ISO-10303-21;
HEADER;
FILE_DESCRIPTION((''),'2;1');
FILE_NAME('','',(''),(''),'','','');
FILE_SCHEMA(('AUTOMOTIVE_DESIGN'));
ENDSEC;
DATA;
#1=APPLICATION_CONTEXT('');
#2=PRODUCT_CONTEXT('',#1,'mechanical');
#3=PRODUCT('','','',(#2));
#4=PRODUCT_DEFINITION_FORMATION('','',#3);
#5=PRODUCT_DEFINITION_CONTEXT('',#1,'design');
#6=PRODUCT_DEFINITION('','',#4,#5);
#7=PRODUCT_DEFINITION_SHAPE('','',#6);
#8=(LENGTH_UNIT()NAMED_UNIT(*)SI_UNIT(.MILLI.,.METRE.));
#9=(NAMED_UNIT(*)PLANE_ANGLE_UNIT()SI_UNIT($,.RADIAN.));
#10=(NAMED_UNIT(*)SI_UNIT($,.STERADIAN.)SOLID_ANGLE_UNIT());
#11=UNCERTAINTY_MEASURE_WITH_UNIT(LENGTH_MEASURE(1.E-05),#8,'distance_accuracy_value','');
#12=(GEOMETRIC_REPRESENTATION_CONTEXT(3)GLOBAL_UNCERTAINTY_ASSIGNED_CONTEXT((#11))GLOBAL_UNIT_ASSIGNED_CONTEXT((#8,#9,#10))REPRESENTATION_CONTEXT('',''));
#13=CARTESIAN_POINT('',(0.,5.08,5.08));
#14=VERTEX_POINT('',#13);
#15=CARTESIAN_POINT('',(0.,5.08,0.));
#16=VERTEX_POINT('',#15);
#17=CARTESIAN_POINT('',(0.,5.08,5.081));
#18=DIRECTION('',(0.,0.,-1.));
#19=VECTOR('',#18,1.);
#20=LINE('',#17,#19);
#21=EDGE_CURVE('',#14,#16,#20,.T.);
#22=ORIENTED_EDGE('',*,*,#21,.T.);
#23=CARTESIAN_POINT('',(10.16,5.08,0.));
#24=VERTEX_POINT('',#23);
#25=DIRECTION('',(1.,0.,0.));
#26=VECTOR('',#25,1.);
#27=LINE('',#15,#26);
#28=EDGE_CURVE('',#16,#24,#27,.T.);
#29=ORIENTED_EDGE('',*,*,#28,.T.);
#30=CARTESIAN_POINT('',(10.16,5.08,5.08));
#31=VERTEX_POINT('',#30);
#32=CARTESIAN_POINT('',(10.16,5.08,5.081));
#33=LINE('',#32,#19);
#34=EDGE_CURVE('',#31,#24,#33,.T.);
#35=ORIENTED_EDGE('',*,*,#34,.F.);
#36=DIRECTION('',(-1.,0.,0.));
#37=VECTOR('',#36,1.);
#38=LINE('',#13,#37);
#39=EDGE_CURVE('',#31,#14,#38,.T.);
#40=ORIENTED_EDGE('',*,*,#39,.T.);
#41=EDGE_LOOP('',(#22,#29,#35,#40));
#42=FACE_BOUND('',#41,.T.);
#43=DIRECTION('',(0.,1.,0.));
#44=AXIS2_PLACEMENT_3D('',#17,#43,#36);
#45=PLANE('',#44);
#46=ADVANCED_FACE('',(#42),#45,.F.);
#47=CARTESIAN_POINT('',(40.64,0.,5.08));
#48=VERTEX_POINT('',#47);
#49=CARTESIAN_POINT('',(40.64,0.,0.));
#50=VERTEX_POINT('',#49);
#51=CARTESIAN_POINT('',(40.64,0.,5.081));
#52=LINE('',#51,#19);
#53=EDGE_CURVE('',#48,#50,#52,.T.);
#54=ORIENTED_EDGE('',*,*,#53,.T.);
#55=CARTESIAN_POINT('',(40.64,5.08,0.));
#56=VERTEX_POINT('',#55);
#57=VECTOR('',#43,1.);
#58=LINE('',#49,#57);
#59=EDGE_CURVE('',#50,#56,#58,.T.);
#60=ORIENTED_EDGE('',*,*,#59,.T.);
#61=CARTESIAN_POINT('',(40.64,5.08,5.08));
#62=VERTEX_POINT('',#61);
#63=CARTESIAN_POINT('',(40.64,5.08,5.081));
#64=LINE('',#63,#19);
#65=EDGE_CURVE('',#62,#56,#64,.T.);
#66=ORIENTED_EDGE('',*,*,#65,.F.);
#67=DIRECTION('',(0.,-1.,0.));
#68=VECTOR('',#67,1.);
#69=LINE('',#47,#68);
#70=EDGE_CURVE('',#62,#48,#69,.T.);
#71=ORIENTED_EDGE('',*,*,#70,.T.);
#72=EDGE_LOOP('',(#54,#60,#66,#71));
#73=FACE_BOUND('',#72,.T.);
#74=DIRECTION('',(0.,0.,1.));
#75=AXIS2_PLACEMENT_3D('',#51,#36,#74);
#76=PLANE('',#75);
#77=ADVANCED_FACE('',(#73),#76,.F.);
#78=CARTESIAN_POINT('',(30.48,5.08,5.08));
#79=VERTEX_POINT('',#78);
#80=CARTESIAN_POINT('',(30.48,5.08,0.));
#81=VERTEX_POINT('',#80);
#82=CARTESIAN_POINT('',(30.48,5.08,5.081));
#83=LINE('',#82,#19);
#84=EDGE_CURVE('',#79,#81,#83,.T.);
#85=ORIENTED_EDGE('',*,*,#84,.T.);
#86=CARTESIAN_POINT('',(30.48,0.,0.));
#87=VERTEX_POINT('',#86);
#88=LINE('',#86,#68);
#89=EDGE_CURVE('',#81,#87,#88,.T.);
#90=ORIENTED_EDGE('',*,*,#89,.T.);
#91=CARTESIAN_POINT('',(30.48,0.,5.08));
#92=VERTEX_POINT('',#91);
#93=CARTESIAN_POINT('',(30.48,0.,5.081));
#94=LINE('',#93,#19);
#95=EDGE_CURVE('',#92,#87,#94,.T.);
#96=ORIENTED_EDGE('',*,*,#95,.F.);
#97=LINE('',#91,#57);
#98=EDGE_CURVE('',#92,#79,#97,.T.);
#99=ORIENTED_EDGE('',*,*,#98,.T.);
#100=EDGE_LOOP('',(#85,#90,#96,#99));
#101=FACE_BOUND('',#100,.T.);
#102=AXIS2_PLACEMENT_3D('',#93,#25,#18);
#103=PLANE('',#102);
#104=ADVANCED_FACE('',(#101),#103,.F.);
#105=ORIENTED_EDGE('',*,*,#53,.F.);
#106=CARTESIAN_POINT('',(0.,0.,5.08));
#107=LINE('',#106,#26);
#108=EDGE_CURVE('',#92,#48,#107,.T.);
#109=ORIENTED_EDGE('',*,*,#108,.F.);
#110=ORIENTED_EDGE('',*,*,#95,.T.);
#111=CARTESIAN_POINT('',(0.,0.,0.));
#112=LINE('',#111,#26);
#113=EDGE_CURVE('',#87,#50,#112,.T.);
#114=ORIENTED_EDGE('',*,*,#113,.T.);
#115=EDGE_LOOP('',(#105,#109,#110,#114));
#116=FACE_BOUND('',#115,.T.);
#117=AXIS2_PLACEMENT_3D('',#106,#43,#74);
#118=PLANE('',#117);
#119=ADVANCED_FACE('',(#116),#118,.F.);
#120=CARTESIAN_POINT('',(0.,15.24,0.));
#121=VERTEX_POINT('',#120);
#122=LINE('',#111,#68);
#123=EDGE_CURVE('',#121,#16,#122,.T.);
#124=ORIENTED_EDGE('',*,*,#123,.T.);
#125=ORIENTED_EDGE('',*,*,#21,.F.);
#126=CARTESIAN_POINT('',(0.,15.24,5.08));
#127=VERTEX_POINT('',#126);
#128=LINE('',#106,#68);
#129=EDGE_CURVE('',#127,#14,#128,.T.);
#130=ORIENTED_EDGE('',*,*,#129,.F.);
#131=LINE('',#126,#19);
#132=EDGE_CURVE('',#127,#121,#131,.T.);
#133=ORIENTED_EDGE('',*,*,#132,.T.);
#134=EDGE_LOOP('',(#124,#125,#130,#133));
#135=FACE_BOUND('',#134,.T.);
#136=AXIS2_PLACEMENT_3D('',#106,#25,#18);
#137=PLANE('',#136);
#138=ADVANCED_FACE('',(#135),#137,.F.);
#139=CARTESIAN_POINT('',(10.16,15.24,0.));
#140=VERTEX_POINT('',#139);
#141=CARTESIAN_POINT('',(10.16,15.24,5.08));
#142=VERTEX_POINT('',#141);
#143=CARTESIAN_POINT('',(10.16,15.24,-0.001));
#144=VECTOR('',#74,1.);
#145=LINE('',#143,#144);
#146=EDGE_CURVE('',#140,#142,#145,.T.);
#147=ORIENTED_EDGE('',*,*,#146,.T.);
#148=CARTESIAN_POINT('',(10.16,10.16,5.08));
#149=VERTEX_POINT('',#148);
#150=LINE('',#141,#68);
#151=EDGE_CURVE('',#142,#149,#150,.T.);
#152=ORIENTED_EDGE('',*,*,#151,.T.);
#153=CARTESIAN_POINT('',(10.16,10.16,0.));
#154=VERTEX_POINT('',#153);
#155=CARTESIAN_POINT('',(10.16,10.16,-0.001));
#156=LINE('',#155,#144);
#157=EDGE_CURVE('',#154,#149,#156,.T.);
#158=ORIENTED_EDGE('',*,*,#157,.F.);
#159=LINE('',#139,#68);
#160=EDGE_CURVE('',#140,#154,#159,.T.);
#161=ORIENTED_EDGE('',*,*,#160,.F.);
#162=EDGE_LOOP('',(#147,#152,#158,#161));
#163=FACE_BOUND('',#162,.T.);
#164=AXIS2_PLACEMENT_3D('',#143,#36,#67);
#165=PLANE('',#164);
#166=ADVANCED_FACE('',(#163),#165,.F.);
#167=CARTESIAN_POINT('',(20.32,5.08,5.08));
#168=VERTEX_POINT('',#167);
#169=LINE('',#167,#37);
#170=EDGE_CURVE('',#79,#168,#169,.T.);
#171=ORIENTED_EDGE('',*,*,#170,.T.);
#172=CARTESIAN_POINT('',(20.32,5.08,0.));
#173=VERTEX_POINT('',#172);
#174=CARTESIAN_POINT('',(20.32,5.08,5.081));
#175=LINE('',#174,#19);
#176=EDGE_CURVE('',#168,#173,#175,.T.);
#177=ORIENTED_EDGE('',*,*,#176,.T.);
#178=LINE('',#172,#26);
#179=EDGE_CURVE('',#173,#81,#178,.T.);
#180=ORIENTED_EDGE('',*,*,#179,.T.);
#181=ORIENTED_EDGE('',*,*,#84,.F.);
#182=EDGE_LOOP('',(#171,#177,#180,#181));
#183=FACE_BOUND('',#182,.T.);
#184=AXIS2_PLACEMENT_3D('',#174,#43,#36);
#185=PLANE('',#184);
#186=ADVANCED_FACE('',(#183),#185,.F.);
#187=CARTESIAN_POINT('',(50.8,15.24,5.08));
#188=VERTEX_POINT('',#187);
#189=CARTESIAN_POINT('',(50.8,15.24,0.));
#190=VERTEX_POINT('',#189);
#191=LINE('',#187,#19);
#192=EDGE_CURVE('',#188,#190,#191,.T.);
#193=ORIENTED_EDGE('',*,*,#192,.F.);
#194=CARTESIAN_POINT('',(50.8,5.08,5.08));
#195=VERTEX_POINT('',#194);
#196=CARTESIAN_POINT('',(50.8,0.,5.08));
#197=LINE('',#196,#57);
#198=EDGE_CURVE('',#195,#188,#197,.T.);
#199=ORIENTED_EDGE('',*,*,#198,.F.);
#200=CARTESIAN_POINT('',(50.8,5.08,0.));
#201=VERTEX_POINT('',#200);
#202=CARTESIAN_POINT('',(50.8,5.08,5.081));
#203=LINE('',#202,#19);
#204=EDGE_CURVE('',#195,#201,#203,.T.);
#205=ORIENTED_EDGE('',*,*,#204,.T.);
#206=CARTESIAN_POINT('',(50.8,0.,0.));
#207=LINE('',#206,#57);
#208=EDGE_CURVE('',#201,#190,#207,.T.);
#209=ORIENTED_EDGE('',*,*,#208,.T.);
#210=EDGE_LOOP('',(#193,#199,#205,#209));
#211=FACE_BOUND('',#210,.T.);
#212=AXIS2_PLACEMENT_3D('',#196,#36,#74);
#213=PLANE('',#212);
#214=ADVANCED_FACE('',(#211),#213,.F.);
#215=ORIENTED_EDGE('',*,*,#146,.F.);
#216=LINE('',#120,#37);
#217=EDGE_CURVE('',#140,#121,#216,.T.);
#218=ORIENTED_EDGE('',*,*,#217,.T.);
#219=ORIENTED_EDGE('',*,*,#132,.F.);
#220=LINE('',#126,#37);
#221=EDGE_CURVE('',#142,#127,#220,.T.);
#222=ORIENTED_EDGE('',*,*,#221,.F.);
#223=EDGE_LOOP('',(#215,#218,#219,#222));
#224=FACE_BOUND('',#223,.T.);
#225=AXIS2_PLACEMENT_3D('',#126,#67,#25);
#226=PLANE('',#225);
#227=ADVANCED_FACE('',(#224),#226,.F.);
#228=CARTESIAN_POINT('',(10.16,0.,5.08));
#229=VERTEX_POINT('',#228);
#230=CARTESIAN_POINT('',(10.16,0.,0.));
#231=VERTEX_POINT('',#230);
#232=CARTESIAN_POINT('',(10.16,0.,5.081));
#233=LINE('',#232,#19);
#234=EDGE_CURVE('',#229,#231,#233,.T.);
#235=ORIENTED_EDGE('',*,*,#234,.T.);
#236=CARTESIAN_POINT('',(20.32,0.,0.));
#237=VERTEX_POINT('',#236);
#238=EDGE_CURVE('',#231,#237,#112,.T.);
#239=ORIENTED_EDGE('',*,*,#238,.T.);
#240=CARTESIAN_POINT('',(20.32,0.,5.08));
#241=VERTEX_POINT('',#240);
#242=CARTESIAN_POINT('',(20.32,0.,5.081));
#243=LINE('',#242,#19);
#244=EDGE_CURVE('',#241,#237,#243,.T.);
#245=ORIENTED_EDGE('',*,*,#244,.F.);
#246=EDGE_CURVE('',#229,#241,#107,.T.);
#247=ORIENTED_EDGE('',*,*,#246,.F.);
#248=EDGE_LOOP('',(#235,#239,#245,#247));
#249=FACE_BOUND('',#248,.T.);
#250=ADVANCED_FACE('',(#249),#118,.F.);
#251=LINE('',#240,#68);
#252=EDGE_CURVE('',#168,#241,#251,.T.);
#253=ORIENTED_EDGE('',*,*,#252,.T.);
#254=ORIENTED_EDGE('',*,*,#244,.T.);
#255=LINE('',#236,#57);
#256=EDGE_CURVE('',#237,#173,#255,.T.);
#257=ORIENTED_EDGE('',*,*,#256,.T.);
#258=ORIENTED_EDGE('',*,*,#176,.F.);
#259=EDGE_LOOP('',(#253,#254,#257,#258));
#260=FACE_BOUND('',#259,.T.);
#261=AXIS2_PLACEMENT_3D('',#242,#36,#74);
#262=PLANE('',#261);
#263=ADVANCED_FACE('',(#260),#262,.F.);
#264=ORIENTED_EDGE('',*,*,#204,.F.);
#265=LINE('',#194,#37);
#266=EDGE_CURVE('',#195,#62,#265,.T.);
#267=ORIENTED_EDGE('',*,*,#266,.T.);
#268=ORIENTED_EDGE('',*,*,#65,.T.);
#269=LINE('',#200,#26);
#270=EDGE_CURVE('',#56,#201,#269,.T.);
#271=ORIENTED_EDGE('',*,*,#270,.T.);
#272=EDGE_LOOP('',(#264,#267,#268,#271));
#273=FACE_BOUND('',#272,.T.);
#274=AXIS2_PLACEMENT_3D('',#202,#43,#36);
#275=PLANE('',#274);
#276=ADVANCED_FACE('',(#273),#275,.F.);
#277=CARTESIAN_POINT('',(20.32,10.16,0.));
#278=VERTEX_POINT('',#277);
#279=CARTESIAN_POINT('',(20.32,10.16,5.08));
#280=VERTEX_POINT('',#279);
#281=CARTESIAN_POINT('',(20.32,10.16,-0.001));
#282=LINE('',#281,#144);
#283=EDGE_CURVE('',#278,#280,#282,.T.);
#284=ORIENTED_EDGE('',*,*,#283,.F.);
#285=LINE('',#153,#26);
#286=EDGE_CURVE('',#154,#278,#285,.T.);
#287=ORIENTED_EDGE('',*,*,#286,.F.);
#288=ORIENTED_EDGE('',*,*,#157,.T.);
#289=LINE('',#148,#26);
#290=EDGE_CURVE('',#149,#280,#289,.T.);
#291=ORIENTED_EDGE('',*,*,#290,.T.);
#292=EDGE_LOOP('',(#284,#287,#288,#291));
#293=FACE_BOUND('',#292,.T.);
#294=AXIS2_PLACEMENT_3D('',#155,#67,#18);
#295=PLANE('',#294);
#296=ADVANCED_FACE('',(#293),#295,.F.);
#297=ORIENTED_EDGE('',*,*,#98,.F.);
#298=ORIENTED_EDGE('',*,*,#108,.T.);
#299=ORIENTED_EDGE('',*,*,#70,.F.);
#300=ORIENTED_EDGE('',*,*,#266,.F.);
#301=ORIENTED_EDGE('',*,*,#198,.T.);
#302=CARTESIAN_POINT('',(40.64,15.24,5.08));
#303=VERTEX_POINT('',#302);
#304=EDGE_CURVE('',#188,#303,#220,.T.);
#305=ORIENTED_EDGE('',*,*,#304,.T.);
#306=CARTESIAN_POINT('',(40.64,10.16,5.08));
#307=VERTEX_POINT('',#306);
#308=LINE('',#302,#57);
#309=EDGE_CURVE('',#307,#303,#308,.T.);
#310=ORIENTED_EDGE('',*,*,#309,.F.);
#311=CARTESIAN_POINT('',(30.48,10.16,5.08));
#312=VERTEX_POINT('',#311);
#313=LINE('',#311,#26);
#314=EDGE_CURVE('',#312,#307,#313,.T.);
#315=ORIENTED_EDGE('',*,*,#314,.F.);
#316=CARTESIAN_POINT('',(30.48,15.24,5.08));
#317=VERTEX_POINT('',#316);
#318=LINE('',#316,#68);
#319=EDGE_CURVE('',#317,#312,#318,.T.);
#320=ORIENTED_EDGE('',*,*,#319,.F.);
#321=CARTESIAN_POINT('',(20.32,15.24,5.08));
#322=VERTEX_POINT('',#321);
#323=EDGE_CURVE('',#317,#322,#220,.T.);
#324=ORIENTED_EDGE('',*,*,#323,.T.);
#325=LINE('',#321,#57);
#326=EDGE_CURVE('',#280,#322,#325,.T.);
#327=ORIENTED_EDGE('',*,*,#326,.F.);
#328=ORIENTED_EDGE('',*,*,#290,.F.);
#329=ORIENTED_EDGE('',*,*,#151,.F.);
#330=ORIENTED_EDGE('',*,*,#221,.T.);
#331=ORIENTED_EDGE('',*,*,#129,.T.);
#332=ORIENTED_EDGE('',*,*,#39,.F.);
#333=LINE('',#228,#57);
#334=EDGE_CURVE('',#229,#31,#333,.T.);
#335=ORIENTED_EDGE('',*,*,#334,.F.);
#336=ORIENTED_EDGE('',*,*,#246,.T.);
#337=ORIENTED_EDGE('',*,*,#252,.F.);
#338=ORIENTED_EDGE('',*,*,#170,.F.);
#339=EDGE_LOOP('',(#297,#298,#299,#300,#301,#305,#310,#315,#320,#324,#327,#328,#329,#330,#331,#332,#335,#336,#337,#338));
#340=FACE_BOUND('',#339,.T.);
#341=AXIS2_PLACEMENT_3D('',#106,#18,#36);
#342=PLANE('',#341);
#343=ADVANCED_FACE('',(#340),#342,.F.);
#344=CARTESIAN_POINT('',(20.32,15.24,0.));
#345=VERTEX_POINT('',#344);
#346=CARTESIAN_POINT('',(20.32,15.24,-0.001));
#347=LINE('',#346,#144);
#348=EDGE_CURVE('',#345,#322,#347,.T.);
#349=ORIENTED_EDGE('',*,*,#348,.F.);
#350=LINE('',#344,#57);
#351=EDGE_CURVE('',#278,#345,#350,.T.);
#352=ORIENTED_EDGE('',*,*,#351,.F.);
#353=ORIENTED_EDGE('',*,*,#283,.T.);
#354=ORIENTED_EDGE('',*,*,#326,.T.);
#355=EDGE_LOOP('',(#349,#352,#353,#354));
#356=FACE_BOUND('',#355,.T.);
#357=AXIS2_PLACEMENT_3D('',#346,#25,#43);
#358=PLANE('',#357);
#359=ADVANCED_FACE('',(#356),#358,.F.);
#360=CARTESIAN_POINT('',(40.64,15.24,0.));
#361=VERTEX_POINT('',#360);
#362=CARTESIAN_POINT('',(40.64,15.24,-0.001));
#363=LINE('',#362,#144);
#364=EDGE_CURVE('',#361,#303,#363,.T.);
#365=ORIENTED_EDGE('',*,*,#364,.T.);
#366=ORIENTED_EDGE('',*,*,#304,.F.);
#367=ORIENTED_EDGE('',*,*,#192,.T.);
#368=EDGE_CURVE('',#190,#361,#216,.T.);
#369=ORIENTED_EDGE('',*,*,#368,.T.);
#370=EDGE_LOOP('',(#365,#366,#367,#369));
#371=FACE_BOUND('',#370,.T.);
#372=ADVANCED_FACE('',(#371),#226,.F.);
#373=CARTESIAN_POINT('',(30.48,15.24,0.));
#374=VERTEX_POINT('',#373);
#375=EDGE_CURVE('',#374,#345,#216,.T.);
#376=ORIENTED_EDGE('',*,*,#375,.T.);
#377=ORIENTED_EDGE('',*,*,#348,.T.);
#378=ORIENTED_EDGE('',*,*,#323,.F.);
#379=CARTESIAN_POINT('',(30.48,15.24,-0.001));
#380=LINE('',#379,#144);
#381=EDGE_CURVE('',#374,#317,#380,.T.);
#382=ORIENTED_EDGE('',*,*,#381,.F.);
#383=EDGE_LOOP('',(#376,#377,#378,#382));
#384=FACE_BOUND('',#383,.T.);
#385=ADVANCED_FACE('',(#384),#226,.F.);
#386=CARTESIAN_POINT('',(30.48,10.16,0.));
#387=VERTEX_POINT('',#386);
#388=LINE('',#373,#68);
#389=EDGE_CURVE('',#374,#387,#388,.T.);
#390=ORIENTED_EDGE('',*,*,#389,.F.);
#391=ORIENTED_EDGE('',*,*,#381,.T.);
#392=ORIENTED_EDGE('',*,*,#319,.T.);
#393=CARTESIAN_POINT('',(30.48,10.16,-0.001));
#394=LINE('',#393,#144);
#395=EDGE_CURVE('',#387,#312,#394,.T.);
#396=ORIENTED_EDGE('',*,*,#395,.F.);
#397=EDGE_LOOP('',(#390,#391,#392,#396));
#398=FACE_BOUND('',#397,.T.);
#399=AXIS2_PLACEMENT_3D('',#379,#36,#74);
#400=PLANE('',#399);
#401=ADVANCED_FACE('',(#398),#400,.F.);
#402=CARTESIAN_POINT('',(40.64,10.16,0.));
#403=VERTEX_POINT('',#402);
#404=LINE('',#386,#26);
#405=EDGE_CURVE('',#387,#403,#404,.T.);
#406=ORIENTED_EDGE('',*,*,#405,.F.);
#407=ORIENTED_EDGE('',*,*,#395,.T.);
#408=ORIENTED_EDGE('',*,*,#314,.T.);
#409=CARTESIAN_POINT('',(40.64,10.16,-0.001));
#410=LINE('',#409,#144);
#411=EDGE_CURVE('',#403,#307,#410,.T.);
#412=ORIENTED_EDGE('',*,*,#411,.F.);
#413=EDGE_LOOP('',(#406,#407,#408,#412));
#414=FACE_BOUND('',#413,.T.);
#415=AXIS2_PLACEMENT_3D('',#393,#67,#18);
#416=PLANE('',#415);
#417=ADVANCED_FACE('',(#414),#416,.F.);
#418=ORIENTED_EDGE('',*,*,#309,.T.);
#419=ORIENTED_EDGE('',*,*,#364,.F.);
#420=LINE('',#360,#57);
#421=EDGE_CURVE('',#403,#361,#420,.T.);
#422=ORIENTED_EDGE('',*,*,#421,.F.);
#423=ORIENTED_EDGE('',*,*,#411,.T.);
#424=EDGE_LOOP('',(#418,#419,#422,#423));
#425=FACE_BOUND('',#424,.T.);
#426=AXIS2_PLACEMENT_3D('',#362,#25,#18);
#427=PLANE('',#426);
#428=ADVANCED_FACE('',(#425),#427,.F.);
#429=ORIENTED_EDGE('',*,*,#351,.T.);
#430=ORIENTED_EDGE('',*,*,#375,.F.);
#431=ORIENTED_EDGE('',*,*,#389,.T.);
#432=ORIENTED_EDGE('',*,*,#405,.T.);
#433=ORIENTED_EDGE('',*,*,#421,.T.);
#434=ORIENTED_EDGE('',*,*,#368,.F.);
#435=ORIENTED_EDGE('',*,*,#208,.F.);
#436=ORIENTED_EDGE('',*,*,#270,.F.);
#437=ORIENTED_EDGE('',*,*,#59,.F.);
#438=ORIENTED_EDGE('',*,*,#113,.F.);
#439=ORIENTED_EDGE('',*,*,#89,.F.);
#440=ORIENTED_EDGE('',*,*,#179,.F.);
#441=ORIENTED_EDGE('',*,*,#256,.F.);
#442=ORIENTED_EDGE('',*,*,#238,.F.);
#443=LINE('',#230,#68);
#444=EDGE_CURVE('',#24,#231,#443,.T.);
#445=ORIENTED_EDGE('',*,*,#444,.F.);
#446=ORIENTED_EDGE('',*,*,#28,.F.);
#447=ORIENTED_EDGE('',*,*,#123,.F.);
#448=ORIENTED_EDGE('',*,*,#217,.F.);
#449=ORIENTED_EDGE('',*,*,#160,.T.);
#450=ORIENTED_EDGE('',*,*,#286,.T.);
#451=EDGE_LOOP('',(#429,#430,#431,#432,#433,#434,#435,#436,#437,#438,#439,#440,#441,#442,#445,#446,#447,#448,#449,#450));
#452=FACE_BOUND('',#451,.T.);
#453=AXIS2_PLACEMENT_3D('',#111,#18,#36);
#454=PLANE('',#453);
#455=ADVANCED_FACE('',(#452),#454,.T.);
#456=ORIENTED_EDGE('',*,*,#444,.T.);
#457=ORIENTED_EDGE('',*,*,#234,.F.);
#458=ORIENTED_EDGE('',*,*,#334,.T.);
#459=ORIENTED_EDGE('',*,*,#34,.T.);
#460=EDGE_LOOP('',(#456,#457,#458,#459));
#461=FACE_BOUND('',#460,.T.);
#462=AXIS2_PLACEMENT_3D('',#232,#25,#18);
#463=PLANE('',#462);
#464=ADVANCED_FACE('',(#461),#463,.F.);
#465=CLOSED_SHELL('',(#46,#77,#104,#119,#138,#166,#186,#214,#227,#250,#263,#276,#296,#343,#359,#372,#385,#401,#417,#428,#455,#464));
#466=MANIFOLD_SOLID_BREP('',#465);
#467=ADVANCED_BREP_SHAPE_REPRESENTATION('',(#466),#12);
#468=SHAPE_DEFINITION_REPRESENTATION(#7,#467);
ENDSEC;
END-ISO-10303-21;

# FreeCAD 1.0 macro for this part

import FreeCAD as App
import Part
import Sketcher
from FreeCAD import Vector
Q = App.Units.Quantity


def add_polygon(sketch, points):
    """Adds a closed chain of lines whose ends are joined by coincident constraints."""
    first, n = sketch.GeometryCount, len(points)
    for a, b in zip(points, points[1:] + points[:1]):
        sketch.addGeometry(Part.LineSegment(App.Vector(*a, 0), App.Vector(*b, 0)), False)
    for i in range(n):
        sketch.addConstraint(Sketcher.Constraint("Coincident", first + i, 2, first + (i + 1) % n, 1))

doc = App.newDocument("Part")
body = doc.addObject("PartDesign::Body", "Body")

sketch1 = doc.addObject("Sketcher::SketchObject", "Sketch")
body.addObject(sketch1)
sketch1.AttachmentSupport = (doc.XY_Plane, [""])
sketch1.MapMode = "FlatFace"
add_polygon(sketch1, [(0, 15), (0, 0), (51, 0), (51, 15)])
sketch1.addConstraint([
    Sketcher.Constraint("Vertical", 0),
    Sketcher.Constraint("Horizontal", 1),
    Sketcher.Constraint("Vertical", 2),
    Sketcher.Constraint("Horizontal", 3),
    Sketcher.Constraint("Coincident", 0, 2, -1, 1),
    Sketcher.Constraint("DistanceX", 1, 1, 1, 2, Q("2 in")),
    Sketcher.Constraint("DistanceY", 0, 2, 0, 1, Q("0.6 in")),
])
pad1 = doc.addObject("PartDesign::Pad", "Pad")
body.addObject(pad1)
pad1.Profile = sketch1
pad1.Length = Q("0.2 in")

sketch2 = doc.addObject("Sketcher::SketchObject", "Sketch001")
body.addObject(sketch2)
sketch2.AttachmentSupport = (doc.XY_Plane, [""])
sketch2.MapMode = "FlatFace"
add_polygon(sketch2, [(10, 5), (10, 0), (0, 0), (0, 5)])
sketch2.addConstraint([
    Sketcher.Constraint("Vertical", 0),
    Sketcher.Constraint("Horizontal", 1),
    Sketcher.Constraint("Vertical", 2),
    Sketcher.Constraint("Horizontal", 3),
    Sketcher.Constraint("Coincident", 1, 2, -1, 1),
    Sketcher.Constraint("DistanceX", 1, 2, 1, 1, Q("0.4 in")),
    Sketcher.Constraint("DistanceY", 0, 2, 0, 1, Q("0.2 in")),
])
pocket1 = doc.addObject("PartDesign::Pocket", "Pocket")
body.addObject(pocket1)
pocket1.Profile = sketch2
pocket1.Type = "UpToFirst"
pocket1.Reversed = True

sketch3 = doc.addObject("Sketcher::SketchObject", "Sketch002")
body.addObject(sketch3)
sketch3.AttachmentSupport = (doc.XY_Plane, [""])
sketch3.MapMode = "FlatFace"
add_polygon(sketch3, [(30, 5), (30, 0), (20, 0), (20, 5)])
sketch3.addConstraint([
    Sketcher.Constraint("Vertical", 0),
    Sketcher.Constraint("Horizontal", 1),
    Sketcher.Constraint("Vertical", 2),
    Sketcher.Constraint("Horizontal", 3),
    Sketcher.Constraint("PointOnObject", 0, 2, -1),
    Sketcher.Constraint("DistanceX", 1, 2, 1, 1, Q("0.4 in")),
    Sketcher.Constraint("DistanceY", 0, 2, 0, 1, Q("0.2 in")),
    Sketcher.Constraint("DistanceX", -1, 1, 0, 2, Q("1.2 in")),
])
pocket2 = doc.addObject("PartDesign::Pocket", "Pocket001")
body.addObject(pocket2)
pocket2.Profile = sketch3
pocket2.Type = "UpToFirst"
pocket2.Reversed = True

sketch4 = doc.addObject("Sketcher::SketchObject", "Sketch003")
body.addObject(sketch4)
sketch4.AttachmentSupport = (doc.XY_Plane, [""])
sketch4.MapMode = "FlatFace"
add_polygon(sketch4, [(51, 5), (51, 0), (41, 0), (41, 5)])
sketch4.addConstraint([
    Sketcher.Constraint("Vertical", 0),
    Sketcher.Constraint("Horizontal", 1),
    Sketcher.Constraint("Vertical", 2),
    Sketcher.Constraint("Horizontal", 3),
    Sketcher.Constraint("PointOnObject", 0, 2, -1),
    Sketcher.Constraint("DistanceX", 1, 2, 1, 1, Q("0.4 in")),
    Sketcher.Constraint("DistanceY", 0, 2, 0, 1, Q("0.2 in")),
    Sketcher.Constraint("DistanceX", -1, 1, 0, 2, Q("2 in")),
])
pocket3 = doc.addObject("PartDesign::Pocket", "Pocket002")
body.addObject(pocket3)
pocket3.Profile = sketch4
pocket3.Type = "UpToFirst"
pocket3.Reversed = True

sketch5 = doc.addObject("Sketcher::SketchObject", "Sketch004")
body.addObject(sketch5)
sketch5.AttachmentSupport = (doc.XY_Plane, [""])
sketch5.MapMode = "FlatFace"
sketch5.AttachmentOffset = App.Placement(Vector(0, 0, 0.2 * 25.4), App.Rotation())
add_polygon(sketch5, [(10, 15), (10, 10), (20, 10), (20, 15)])
sketch5.addConstraint([
    Sketcher.Constraint("Vertical", 0),
    Sketcher.Constraint("Horizontal", 1),
    Sketcher.Constraint("Vertical", 2),
    Sketcher.Constraint("Horizontal", 3),
    Sketcher.Constraint("DistanceX", 1, 1, 1, 2, Q("0.4 in")),
    Sketcher.Constraint("DistanceY", 0, 2, 0, 1, Q("0.2 in")),
    Sketcher.Constraint("DistanceX", -1, 1, 0, 2, Q("0.4 in")),
    Sketcher.Constraint("DistanceY", -1, 1, 0, 2, Q("0.4 in")),
])
pocket4 = doc.addObject("PartDesign::Pocket", "Pocket003")
body.addObject(pocket4)
pocket4.Profile = sketch5
pocket4.Type = "UpToFirst"

sketch6 = doc.addObject("Sketcher::SketchObject", "Sketch005")
body.addObject(sketch6)
sketch6.AttachmentSupport = (doc.XY_Plane, [""])
sketch6.MapMode = "FlatFace"
sketch6.AttachmentOffset = App.Placement(Vector(0, 0, 0.2 * 25.4), App.Rotation())
add_polygon(sketch6, [(30, 15), (30, 10), (41, 10), (41, 15)])
sketch6.addConstraint([
    Sketcher.Constraint("Vertical", 0),
    Sketcher.Constraint("Horizontal", 1),
    Sketcher.Constraint("Vertical", 2),
    Sketcher.Constraint("Horizontal", 3),
    Sketcher.Constraint("DistanceX", 1, 1, 1, 2, Q("0.4 in")),
    Sketcher.Constraint("DistanceY", 0, 2, 0, 1, Q("0.2 in")),
    Sketcher.Constraint("DistanceX", -1, 1, 0, 2, Q("1.2 in")),
    Sketcher.Constraint("DistanceY", -1, 1, 0, 2, Q("0.4 in")),
])
pocket5 = doc.addObject("PartDesign::Pocket", "Pocket004")
body.addObject(pocket5)
pocket5.Profile = sketch6
pocket5.Type = "UpToFirst"

doc.recompute()
